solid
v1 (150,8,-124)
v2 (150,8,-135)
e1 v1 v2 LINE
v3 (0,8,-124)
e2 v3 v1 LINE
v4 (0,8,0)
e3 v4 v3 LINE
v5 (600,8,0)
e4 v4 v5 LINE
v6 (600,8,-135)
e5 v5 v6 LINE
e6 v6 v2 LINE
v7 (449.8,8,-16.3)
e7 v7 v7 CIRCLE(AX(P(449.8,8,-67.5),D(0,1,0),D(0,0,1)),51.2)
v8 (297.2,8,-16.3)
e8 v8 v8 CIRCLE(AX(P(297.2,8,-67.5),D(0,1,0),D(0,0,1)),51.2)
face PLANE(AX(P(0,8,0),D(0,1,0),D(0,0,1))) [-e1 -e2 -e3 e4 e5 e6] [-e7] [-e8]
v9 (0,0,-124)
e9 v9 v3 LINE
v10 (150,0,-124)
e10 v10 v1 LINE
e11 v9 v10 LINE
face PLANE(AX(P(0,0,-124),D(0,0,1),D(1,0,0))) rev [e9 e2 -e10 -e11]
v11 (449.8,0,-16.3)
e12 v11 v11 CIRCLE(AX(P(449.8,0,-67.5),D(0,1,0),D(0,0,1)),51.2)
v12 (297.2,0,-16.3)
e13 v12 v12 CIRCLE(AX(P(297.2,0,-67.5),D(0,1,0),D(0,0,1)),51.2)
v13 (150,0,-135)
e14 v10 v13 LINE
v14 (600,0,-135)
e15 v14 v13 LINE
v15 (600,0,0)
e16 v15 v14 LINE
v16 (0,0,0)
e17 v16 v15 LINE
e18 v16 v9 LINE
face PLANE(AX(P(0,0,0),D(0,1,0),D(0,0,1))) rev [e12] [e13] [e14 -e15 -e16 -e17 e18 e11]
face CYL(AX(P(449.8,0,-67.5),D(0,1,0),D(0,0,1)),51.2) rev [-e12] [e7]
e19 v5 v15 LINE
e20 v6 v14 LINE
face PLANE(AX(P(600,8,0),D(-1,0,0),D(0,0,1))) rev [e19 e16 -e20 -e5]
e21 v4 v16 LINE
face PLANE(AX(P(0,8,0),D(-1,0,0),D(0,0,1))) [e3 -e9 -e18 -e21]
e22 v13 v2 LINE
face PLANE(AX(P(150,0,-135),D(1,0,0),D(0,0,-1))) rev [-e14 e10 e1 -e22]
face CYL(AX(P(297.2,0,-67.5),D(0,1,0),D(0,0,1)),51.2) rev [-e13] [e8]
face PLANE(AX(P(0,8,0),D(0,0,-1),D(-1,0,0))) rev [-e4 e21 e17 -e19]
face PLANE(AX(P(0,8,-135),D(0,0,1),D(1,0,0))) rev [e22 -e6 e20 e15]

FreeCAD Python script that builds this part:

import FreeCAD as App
import Part
import Sketcher
Q = App.Units.Quantity

doc = App.newDocument("Part")
body = doc.addObject("PartDesign::Body", "Body")

# Sketch on XZ plane
sketch1 = body.newObject("Sketcher::SketchObject", "Sketch")
sketch1.AttachmentSupport = (doc.getObject("XZ_Plane"), [""])
sketch1.MapMode = "FlatFace"
sketch1.addGeometry([
    Part.LineSegment(App.Vector(0, -135, 0), App.Vector(0, 0, 0)),
    Part.LineSegment(App.Vector(0, 0, 0), App.Vector(600, 0, 0)),
    Part.LineSegment(App.Vector(600, 0, 0), App.Vector(600, -135, 0)),
    Part.LineSegment(App.Vector(600, -135, 0), App.Vector(0, -135, 0)),
], False)
sketch1.addConstraint([
    Sketcher.Constraint("Coincident", 0, 2, 1, 1),
    Sketcher.Constraint("Coincident", 1, 2, 2, 1),
    Sketcher.Constraint("Coincident", 2, 2, 3, 1),
    Sketcher.Constraint("Coincident", 3, 2, 0, 1),
    Sketcher.Constraint("Vertical", 0),
    Sketcher.Constraint("Horizontal", 1),
    Sketcher.Constraint("Vertical", 2),
    Sketcher.Constraint("Horizontal", 3),
    Sketcher.Constraint("Coincident", 0, 2, -1, 1),
    Sketcher.Constraint("DistanceX", 1, 1, 1, 2, Q("600 mm")),
    Sketcher.Constraint("DistanceY", 0, 1, 0, 2, Q("135 mm")),
])
pad1 = body.newObject("PartDesign::Pad", "Pad")
pad1.Profile = sketch1
pad1.Length = 8
pad1.Reversed = True

# Sketch on XZ plane
sketch2 = body.newObject("Sketcher::SketchObject", "Sketch001")
sketch2.AttachmentSupport = (doc.getObject("XZ_Plane"), [""])
sketch2.MapMode = "FlatFace"
sketch2.AttachmentOffset = App.Placement(App.Vector(0, 0, -8), App.Rotation())
sketch2.addGeometry([
    Part.Circle(App.Vector(449.8, -67.5, 0), App.Vector(0, 0, 1), 51.2),  # 0
    Part.Circle(App.Vector(297.2, -67.5, 0), App.Vector(0, 0, 1), 51.2),  # 1
    Part.LineSegment(App.Vector(0, -135, 0), App.Vector(0, -124, 0)),  # 2
    Part.LineSegment(App.Vector(0, -124, 0), App.Vector(150, -124, 0)),  # 3
    Part.LineSegment(App.Vector(150, -124, 0), App.Vector(150, -135, 0)),  # 4
    Part.LineSegment(App.Vector(150, -135, 0), App.Vector(0, -135, 0)),  # 5
], False)
sketch2.addConstraint([
    Sketcher.Constraint("Coincident", 2, 2, 3, 1),
    Sketcher.Constraint("Coincident", 3, 2, 4, 1),
    Sketcher.Constraint("Coincident", 4, 2, 5, 1),
    Sketcher.Constraint("Coincident", 5, 2, 2, 1),
    Sketcher.Constraint("Vertical", 2),
    Sketcher.Constraint("Horizontal", 3),
    Sketcher.Constraint("Vertical", 4),
    Sketcher.Constraint("Horizontal", 5),
    Sketcher.Constraint("Equal", 0, 1),
    Sketcher.Constraint("PointOnObject", 2, 2, -2),
    Sketcher.Constraint("Horizontal", 0, 3, 1, 3),
    Sketcher.Constraint("Diameter", 0, Q("102.4 mm")),
    Sketcher.Constraint("DistanceX", 3, 1, 3, 2, Q("150 mm")),
    Sketcher.Constraint("DistanceY", 2, 1, 2, 2, Q("11 mm")),
    Sketcher.Constraint("DistanceY", 2, 2, -1, 1, Q("124 mm")),
    Sketcher.Constraint("DistanceX", -1, 1, 0, 3, Q("449.8 mm")),
    Sketcher.Constraint("DistanceY", 0, 3, -1, 1, Q("67.5 mm")),
    Sketcher.Constraint("DistanceX", -1, 1, 1, 3, Q("297.2 mm")),
])
pocket1 = body.newObject("PartDesign::Pocket", "Pocket")
pocket1.Profile = sketch2
pocket1.Length = 8
pocket1.Reversed = True

doc.recompute()
